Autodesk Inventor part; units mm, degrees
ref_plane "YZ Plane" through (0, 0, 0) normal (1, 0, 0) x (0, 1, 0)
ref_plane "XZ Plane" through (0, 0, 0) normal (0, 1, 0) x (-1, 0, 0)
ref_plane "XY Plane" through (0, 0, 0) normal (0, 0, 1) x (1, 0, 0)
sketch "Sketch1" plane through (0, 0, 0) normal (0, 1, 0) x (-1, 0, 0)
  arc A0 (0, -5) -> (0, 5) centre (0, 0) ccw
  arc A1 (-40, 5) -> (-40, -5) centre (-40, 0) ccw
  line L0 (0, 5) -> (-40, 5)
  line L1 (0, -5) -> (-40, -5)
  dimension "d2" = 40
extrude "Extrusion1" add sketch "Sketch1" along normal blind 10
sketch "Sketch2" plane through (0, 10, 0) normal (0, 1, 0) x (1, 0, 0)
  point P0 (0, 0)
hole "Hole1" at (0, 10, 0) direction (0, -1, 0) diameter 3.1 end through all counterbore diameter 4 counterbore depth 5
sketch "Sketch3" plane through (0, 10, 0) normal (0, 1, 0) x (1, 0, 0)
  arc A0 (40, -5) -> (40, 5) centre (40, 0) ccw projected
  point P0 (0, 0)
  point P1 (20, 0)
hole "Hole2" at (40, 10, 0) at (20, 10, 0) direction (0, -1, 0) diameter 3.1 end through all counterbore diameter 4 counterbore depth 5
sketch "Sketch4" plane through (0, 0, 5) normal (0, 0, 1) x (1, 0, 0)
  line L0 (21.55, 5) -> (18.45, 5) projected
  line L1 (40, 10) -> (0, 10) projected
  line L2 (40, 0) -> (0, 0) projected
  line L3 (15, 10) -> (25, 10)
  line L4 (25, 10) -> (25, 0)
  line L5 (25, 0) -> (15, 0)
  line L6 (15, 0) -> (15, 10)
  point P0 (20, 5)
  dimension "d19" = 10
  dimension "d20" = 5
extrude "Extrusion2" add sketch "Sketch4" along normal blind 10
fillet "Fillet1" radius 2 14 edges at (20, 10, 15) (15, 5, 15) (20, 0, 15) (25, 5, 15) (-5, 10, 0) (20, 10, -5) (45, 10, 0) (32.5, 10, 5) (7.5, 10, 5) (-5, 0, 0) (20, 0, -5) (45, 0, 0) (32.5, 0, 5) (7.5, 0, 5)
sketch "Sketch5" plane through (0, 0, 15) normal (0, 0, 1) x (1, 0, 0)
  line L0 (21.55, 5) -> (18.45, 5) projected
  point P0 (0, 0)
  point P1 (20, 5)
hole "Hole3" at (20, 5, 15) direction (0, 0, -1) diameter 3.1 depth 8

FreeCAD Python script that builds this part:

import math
import FreeCAD as App
import Part
import Sketcher

V = App.Vector


def edges_at(feature, points):
    """Names of the edges that pass closest to the given points."""
    edges = feature.Shape.Edges
    near = lambda p: min(range(len(edges)), key=lambda i: edges[i].distToShape(Part.Vertex(*p))[0])
    return sorted({f"Edge{near(p) + 1}" for p in points})

doc = App.newDocument("Part")
body = doc.addObject("PartDesign::Body", "Body")

# Sketch on XZ plane
sketch1 = body.newObject("Sketcher::SketchObject", "Sketch")
sketch1.AttachmentSupport = (doc.getObject("XZ_Plane"), [""])
sketch1.MapMode = "FlatFace"
sketch1.addGeometry([
    Part.LineSegment(V(40, -5, 0), V(0, -5, 0)),
    Part.ArcOfCircle(Part.Circle(V(0, 0, 0), V(0, 0, 1), 5), math.radians(90), math.radians(270)),
    Part.LineSegment(V(0, 5, 0), V(40, 5, 0)),
    Part.ArcOfCircle(Part.Circle(V(40, 0, 0), V(0, 0, 1), 5), math.radians(-90), math.radians(90)),
], False)
sketch1.addConstraint([
    Sketcher.Constraint("Tangent", 0, 2, 1, 2),
    Sketcher.Constraint("Tangent", 1, 1, 2, 1),
    Sketcher.Constraint("Tangent", 2, 2, 3, 2),
    Sketcher.Constraint("Tangent", 3, 1, 0, 1),
    Sketcher.Constraint("Horizontal", 0),
    Sketcher.Constraint("Horizontal", 2),
    Sketcher.Constraint("Coincident", 1, 3, -1, 1),
    Sketcher.Constraint("DistanceX", 0, 2, 0, 1, 40.0),
    Sketcher.Constraint("Radius", 1, 5.0),
])
pad1 = body.newObject("PartDesign::Pad", "Pad")
pad1.Profile = sketch1
pad1.Length = 10
pad1.Reversed = True

# Sketch on XZ plane
sketch2 = body.newObject("Sketcher::SketchObject", "Sketch001")
sketch2.AttachmentSupport = (doc.getObject("XZ_Plane"), [""])
sketch2.MapMode = "FlatFace"
sketch2.AttachmentOffset = App.Placement(V(0, 0, -10), App.Rotation())
sketch2.addGeometry(Part.Circle(V(0, 0, 0), V(0, 0, 1), 1.6), False)
sketch2.addConstraint([
    Sketcher.Constraint("Coincident", 0, 3, -1, 1),
    Sketcher.Constraint("Diameter", 0, 3.1),
])
doc.recompute()
hole = body.newObject("PartDesign::Hole", "Hole")
hole.Profile = sketch2
hole.ThreadType = "None"
hole.Diameter = 3.1
hole.DepthType = "ThroughAll"
hole.HoleCutType = "Counterbore"
hole.HoleCutDiameter = 4
hole.HoleCutDepth = 5
hole.Reversed = True

# Sketch on XZ plane
sketch3 = body.newObject("Sketcher::SketchObject", "Sketch002")
sketch3.AttachmentSupport = (doc.getObject("XZ_Plane"), [""])
sketch3.MapMode = "FlatFace"
sketch3.AttachmentOffset = App.Placement(V(0, 0, -10), App.Rotation())
sketch3.addGeometry([
    Part.Circle(V(40, 0, 0), V(0, 0, 1), 1.6),
    Part.Circle(V(20, 0, 0), V(0, 0, 1), 1.6),
], False)
sketch3.addConstraint([
    Sketcher.Constraint("Equal", 0, 1),
    Sketcher.Constraint("PointOnObject", 0, 3, -1),
    Sketcher.Constraint("PointOnObject", 1, 3, -1),
    Sketcher.Constraint("Diameter", 0, 3.1),
    Sketcher.Constraint("DistanceX", -1, 1, 0, 3, 40.0),
    Sketcher.Constraint("DistanceX", -1, 1, 1, 3, 20.0),
])
doc.recompute()
hole2 = body.newObject("PartDesign::Hole", "Hole001")
hole2.Profile = sketch3
hole2.ThreadType = "None"
hole2.Diameter = 3.1
hole2.DepthType = "ThroughAll"
hole2.HoleCutType = "Counterbore"
hole2.HoleCutDiameter = 4
hole2.HoleCutDepth = 5
hole2.Reversed = True

# Sketch on XY plane
sketch4 = body.newObject("Sketcher::SketchObject", "Sketch003")
sketch4.AttachmentSupport = (doc.getObject("XY_Plane"), [""])
sketch4.MapMode = "FlatFace"
sketch4.AttachmentOffset = App.Placement(V(0, 0, 5), App.Rotation())
sketch4.addGeometry([
    Part.LineSegment(V(25, 0, 0), V(25, 10, 0)),
    Part.LineSegment(V(25, 10, 0), V(15, 10, 0)),
    Part.LineSegment(V(15, 10, 0), V(15, 0, 0)),
    Part.LineSegment(V(15, 0, 0), V(25, 0, 0)),
], False)
sketch4.addConstraint([
    Sketcher.Constraint("Coincident", 0, 2, 1, 1),
    Sketcher.Constraint("Coincident", 1, 2, 2, 1),
    Sketcher.Constraint("Coincident", 2, 2, 3, 1),
    Sketcher.Constraint("Coincident", 3, 2, 0, 1),
    Sketcher.Constraint("Vertical", 0),
    Sketcher.Constraint("Horizontal", 1),
    Sketcher.Constraint("Vertical", 2),
    Sketcher.Constraint("Horizontal", 3),
    Sketcher.Constraint("PointOnObject", 2, 2, -1),
    Sketcher.Constraint("Equal", 3, 0),
    Sketcher.Constraint("DistanceX", 1, 2, 1, 1, 10.0),
    Sketcher.Constraint("DistanceX", -1, 1, 0, 2, 25.0),
])
pad2 = body.newObject("PartDesign::Pad", "Pad001")
pad2.Profile = sketch4
pad2.Length = 10
doc.recompute()

fillet = body.newObject("PartDesign::Fillet", "Fillet")
fillet.Base = (pad2, edges_at(pad2, [
    (20, 10, 15),
    (15, 5, 15),
    (20, 0, 15),
    (25, 5, 15),
    (-5, 10, 0),
    (20, 10, -5),
    (45, 10, 0),
    (32.5, 10, 5),
    (7.5, 10, 5),
    (-5, 0, 0),
    (20, 0, -5),
    (45, 0, 0),
    (32.5, 0, 5),
    (7.5, 0, 5),
]))
fillet.Radius = 2

# Sketch on XY plane
sketch5 = body.newObject("Sketcher::SketchObject", "Sketch004")
sketch5.AttachmentSupport = (doc.getObject("XY_Plane"), [""])
sketch5.MapMode = "FlatFace"
sketch5.AttachmentOffset = App.Placement(V(0, 0, 15), App.Rotation())
sketch5.addGeometry(Part.Circle(V(20, 5, 0), V(0, 0, 1), 1.6), False)
sketch5.addConstraint([
    Sketcher.Constraint("Diameter", 0, 3.1),
    Sketcher.Constraint("DistanceX", -1, 1, 0, 3, 20.0),
    Sketcher.Constraint("DistanceY", -1, 1, 0, 3, 5.0),
])
doc.recompute()
hole3 = body.newObject("PartDesign::Hole", "Hole002")
hole3.Profile = sketch5
hole3.ThreadType = "None"
hole3.Diameter = 3.1
hole3.DepthType = "Dimension"
hole3.Depth = 8
hole3.DrillPoint = "Flat"

doc.recompute()
